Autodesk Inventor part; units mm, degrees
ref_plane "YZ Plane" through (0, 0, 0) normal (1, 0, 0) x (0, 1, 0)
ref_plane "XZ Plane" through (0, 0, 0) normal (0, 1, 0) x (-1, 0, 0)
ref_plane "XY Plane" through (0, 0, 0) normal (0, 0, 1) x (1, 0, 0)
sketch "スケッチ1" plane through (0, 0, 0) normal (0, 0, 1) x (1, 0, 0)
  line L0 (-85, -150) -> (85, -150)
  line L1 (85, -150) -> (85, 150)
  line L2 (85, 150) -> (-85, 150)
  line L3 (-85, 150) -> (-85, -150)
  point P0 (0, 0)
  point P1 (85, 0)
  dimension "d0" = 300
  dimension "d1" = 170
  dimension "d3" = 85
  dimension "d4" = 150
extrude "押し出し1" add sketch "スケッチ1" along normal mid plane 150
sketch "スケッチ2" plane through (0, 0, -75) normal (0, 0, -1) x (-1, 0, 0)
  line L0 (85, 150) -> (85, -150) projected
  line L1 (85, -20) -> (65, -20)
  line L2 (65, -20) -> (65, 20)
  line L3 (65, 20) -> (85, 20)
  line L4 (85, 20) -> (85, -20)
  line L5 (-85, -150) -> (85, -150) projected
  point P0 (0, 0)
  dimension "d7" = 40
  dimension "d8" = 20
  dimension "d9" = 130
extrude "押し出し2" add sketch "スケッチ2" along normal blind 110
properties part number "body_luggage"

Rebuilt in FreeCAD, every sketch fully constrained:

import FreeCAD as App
import Part
import Sketcher
from FreeCAD import Vector
Q = App.Units.Quantity


def add_polygon(sketch, points):
    """Adds a closed chain of lines whose ends are joined by coincident constraints."""
    first, n = sketch.GeometryCount, len(points)
    for a, b in zip(points, points[1:] + points[:1]):
        sketch.addGeometry(Part.LineSegment(App.Vector(*a, 0), App.Vector(*b, 0)), False)
    for i in range(n):
        sketch.addConstraint(Sketcher.Constraint("Coincident", first + i, 2, first + (i + 1) % n, 1))

doc = App.newDocument("Part")
body = doc.addObject("PartDesign::Body", "Body")

# Sketch on XY plane
sketch1 = body.newObject("Sketcher::SketchObject", "Sketch")
sketch1.AttachmentSupport = (doc.getObject("XY_Plane"), [""])
sketch1.MapMode = "FlatFace"
add_polygon(sketch1, [(-85, 150), (-85, -150), (85, -150), (85, 150)])  # lines 0-3
sketch1.addConstraint([
    Sketcher.Constraint("Vertical", 0),
    Sketcher.Constraint("Horizontal", 1),
    Sketcher.Constraint("Vertical", 2),
    Sketcher.Constraint("Horizontal", 3),
    Sketcher.Constraint("Symmetric", 0, 2, 2, 2, -1, 1),
    Sketcher.Constraint("DistanceX", 1, 1, 1, 2, Q("170 mm")),
    Sketcher.Constraint("DistanceY", 0, 2, 0, 1, Q("300 mm")),
])
pad1 = body.newObject("PartDesign::Pad", "Pad")
pad1.Profile = sketch1
pad1.Length = 150
pad1.Midplane = True

# Sketch on XY plane
sketch2 = body.newObject("Sketcher::SketchObject", "Sketch001")
sketch2.AttachmentSupport = (doc.getObject("XY_Plane"), [""])
sketch2.MapMode = "FlatFace"
sketch2.AttachmentOffset = App.Placement(Vector(0, 0, -75), App.Rotation())
add_polygon(sketch2, [(-85, -20), (-85, 20), (-65, 20), (-65, -20)])  # lines 0-3
sketch2.addConstraint([
    Sketcher.Constraint("Vertical", 0),
    Sketcher.Constraint("Horizontal", 1),
    Sketcher.Constraint("Vertical", 2),
    Sketcher.Constraint("Horizontal", 3),
    Sketcher.Constraint("DistanceX", 1, 1, 1, 2, Q("20 mm")),
    Sketcher.Constraint("DistanceY", 0, 1, 0, 2, Q("40 mm")),
    Sketcher.Constraint("DistanceY", -1, 1, 0, 2, Q("20 mm")),
    Sketcher.Constraint("DistanceX", 0, 2, -1, 1, Q("85 mm")),
])
pad2 = body.newObject("PartDesign::Pad", "Pad001")
pad2.Profile = sketch2
pad2.Length = 110
pad2.Reversed = True

doc.recompute()
